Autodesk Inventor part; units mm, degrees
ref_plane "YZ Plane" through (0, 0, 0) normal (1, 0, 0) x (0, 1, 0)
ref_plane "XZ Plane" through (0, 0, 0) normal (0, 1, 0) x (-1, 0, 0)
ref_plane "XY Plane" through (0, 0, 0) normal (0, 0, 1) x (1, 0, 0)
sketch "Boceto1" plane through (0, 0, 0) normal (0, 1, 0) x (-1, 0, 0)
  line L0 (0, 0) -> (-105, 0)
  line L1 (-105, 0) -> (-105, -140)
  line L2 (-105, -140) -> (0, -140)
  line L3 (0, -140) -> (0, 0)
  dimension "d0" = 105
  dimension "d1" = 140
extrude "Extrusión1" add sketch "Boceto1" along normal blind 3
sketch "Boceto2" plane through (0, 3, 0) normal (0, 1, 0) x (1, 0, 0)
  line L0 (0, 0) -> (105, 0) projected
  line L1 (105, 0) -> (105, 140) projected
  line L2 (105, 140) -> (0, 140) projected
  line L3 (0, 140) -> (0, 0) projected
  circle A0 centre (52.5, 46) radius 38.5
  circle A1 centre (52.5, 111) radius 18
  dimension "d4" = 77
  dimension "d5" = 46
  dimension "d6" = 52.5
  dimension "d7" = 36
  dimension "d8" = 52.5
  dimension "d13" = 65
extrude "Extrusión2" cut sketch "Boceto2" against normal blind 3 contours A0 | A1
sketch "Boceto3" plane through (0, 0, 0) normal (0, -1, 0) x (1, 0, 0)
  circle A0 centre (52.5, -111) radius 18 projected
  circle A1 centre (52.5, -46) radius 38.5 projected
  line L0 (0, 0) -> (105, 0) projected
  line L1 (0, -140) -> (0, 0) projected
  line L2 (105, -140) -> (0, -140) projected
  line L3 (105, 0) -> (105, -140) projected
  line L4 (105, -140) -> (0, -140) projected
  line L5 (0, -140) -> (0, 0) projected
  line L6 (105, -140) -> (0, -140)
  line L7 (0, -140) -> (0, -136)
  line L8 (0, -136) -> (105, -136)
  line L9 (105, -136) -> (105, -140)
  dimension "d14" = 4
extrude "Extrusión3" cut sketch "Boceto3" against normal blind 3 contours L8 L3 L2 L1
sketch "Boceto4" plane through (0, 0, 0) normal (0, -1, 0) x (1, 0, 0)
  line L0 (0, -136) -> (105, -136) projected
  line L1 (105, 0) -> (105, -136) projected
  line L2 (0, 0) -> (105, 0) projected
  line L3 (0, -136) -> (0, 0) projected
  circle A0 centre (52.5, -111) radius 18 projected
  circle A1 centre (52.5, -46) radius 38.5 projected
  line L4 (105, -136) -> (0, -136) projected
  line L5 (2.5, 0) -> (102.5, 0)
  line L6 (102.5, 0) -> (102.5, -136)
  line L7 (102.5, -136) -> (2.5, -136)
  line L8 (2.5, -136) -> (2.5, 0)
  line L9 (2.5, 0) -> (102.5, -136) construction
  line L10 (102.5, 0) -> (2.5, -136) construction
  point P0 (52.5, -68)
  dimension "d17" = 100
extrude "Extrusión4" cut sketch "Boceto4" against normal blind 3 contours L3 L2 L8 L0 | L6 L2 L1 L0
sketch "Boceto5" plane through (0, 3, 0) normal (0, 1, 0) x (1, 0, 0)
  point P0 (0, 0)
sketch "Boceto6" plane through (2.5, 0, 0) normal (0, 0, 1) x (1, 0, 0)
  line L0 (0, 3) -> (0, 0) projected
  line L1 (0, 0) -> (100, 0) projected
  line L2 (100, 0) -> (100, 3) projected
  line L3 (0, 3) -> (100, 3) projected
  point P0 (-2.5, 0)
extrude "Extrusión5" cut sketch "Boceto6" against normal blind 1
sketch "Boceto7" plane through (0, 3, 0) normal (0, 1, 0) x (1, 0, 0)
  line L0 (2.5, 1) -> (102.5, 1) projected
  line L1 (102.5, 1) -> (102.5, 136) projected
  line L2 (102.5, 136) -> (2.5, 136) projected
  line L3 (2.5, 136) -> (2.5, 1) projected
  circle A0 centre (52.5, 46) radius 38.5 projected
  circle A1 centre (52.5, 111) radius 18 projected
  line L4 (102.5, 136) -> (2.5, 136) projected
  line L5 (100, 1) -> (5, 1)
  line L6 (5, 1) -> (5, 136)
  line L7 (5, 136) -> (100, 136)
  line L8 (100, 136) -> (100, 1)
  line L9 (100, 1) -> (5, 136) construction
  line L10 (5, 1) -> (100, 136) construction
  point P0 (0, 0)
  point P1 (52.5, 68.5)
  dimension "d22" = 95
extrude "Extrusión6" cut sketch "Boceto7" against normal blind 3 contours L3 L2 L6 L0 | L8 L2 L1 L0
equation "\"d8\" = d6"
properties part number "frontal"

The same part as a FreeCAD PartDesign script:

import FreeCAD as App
import Part
import Sketcher
from FreeCAD import Vector

doc = App.newDocument("Part")
body = doc.addObject("PartDesign::Body", "Body")

# Sketch on XZ plane
sketch1 = doc.addObject("Sketcher::SketchObject", "Sketch")
body.addObject(sketch1)
sketch1.AttachmentSupport = (doc.XZ_Plane, [""])
sketch1.MapMode = "FlatFace"
sketch1.addGeometry([
    Part.LineSegment(Vector(0, -140, 0), Vector(0, 0, 0)),
    Part.LineSegment(Vector(0, 0, 0), Vector(105, 0, 0)),
    Part.LineSegment(Vector(105, 0, 0), Vector(105, -140, 0)),
    Part.LineSegment(Vector(105, -140, 0), Vector(0, -140, 0)),
], False)
sketch1.addConstraint([
    Sketcher.Constraint("Coincident", 0, 2, 1, 1),
    Sketcher.Constraint("Coincident", 1, 2, 2, 1),
    Sketcher.Constraint("Coincident", 2, 2, 3, 1),
    Sketcher.Constraint("Coincident", 3, 2, 0, 1),
    Sketcher.Constraint("Vertical", 0),
    Sketcher.Constraint("Horizontal", 1),
    Sketcher.Constraint("Vertical", 2),
    Sketcher.Constraint("Horizontal", 3),
    Sketcher.Constraint("Coincident", 0, 2, -1, 1),
    Sketcher.Constraint("DistanceX", 1, 1, 1, 2, 105.0),
    Sketcher.Constraint("DistanceY", 0, 1, 0, 2, 140.0),
])
pad1 = doc.addObject("PartDesign::Pad", "Pad")
body.addObject(pad1)
pad1.Profile = sketch1
pad1.Length = 3
pad1.Reversed = True

# Sketch on XZ plane
sketch2 = doc.addObject("Sketcher::SketchObject", "Sketch001")
body.addObject(sketch2)
sketch2.AttachmentSupport = (doc.XZ_Plane, [""])
sketch2.MapMode = "FlatFace"
sketch2.AttachmentOffset = App.Placement(Vector(0, 0, -3), App.Rotation())
sketch2.addGeometry([
    Part.Circle(Vector(52, -46, 0), Vector(0, 0, 1), 38),
    Part.Circle(Vector(52, -111, 0), Vector(0, 0, 1), 18),
], False)
sketch2.addConstraint([
    Sketcher.Constraint("Vertical", 0, 3, 1, 3),
    Sketcher.Constraint("Diameter", 0, 77.0),
    Sketcher.Constraint("Diameter", 1, 36.0),
    Sketcher.Constraint("DistanceY", 0, 3, -1, 1, 46.0),
    Sketcher.Constraint("DistanceY", 1, 3, 0, 3, 65.0),
    Sketcher.Constraint("DistanceX", -1, 1, 0, 3, 52.5),
])
pocket1 = doc.addObject("PartDesign::Pocket", "Pocket")
body.addObject(pocket1)
pocket1.Profile = sketch2
pocket1.Length = 3
pocket1.Reversed = True

# Sketch on XZ plane
sketch3 = doc.addObject("Sketcher::SketchObject", "Sketch002")
body.addObject(sketch3)
sketch3.AttachmentSupport = (doc.XZ_Plane, [""])
sketch3.MapMode = "FlatFace"
sketch3.addGeometry([
    Part.LineSegment(Vector(105, -136, 0), Vector(0, -136, 0)),
    Part.LineSegment(Vector(0, -136, 0), Vector(0, -140, 0)),
    Part.LineSegment(Vector(0, -140, 0), Vector(105, -140, 0)),
    Part.LineSegment(Vector(105, -140, 0), Vector(105, -136, 0)),
], False)
sketch3.addConstraint([
    Sketcher.Constraint("Coincident", 0, 2, 1, 1),
    Sketcher.Constraint("Coincident", 1, 2, 2, 1),
    Sketcher.Constraint("Coincident", 2, 2, 3, 1),
    Sketcher.Constraint("Coincident", 3, 2, 0, 1),
    Sketcher.Constraint("Horizontal", 0),
    Sketcher.Constraint("Vertical", 1),
    Sketcher.Constraint("Horizontal", 2),
    Sketcher.Constraint("Vertical", 3),
    Sketcher.Constraint("PointOnObject", 0, 2, -2),
    Sketcher.Constraint("DistanceY", 1, 2, 1, 1, 4.0),
    Sketcher.Constraint("DistanceX", 0, 2, 0, 1, 105.0),
    Sketcher.Constraint("DistanceY", 0, 2, -1, 1, 136.0),
])
pocket2 = doc.addObject("PartDesign::Pocket", "Pocket001")
body.addObject(pocket2)
pocket2.Profile = sketch3
pocket2.Length = 3

# Sketch on XZ plane
sketch4 = doc.addObject("Sketcher::SketchObject", "Sketch003")
body.addObject(sketch4)
sketch4.AttachmentSupport = (doc.XZ_Plane, [""])
sketch4.MapMode = "FlatFace"
sketch4.addGeometry([
    Part.LineSegment(Vector(0, 0, 0), Vector(0, -136, 0)),  # 0
    Part.LineSegment(Vector(0, -136, 0), Vector(2.5, -136, 0)),  # 1
    Part.LineSegment(Vector(2.5, -136, 0), Vector(2.5, 0, 0)),  # 2
    Part.LineSegment(Vector(2.5, 0, 0), Vector(0, 0, 0)),  # 3
    Part.LineSegment(Vector(102.5, 0, 0), Vector(102.5, -136, 0)),  # 4
    Part.LineSegment(Vector(102.5, -136, 0), Vector(105, -136, 0)),  # 5
    Part.LineSegment(Vector(105, -136, 0), Vector(105, 0, 0)),  # 6
    Part.LineSegment(Vector(105, 0, 0), Vector(102.5, 0, 0)),  # 7
], False)
sketch4.addConstraint([
    Sketcher.Constraint("Coincident", 0, 2, 1, 1),
    Sketcher.Constraint("Coincident", 1, 2, 2, 1),
    Sketcher.Constraint("Coincident", 2, 2, 3, 1),
    Sketcher.Constraint("Coincident", 3, 2, 0, 1),
    Sketcher.Constraint("Coincident", 4, 2, 5, 1),
    Sketcher.Constraint("Coincident", 5, 2, 6, 1),
    Sketcher.Constraint("Coincident", 6, 2, 7, 1),
    Sketcher.Constraint("Coincident", 7, 2, 4, 1),
    Sketcher.Constraint("Vertical", 0),
    Sketcher.Constraint("Horizontal", 1),
    Sketcher.Constraint("Vertical", 2),
    Sketcher.Constraint("Horizontal", 3),
    Sketcher.Constraint("Vertical", 4),
    Sketcher.Constraint("Horizontal", 5),
    Sketcher.Constraint("Vertical", 6),
    Sketcher.Constraint("Horizontal", 7),
    Sketcher.Constraint("Coincident", 3, 2, -1, 1),
    Sketcher.Constraint("PointOnObject", 6, 2, -1),
    Sketcher.Constraint("Horizontal", 1, 2, 4, 2),
    Sketcher.Constraint("Equal", 3, 5),
    Sketcher.Constraint("DistanceX", 1, 2, 4, 2, 100.0),
    Sketcher.Constraint("DistanceY", 0, 2, 0, 1, 136.0),
    Sketcher.Constraint("DistanceX", 1, 1, 1, 2, 2.5),
])
pocket3 = doc.addObject("PartDesign::Pocket", "Pocket002")
body.addObject(pocket3)
pocket3.Profile = sketch4
pocket3.Length = 3

# Sketch on XY plane
sketch5 = doc.addObject("Sketcher::SketchObject", "Sketch004")
body.addObject(sketch5)
sketch5.AttachmentSupport = (doc.XY_Plane, [""])
sketch5.MapMode = "FlatFace"
sketch5.addGeometry([
    Part.LineSegment(Vector(102.5, 3, 0), Vector(2.5, 3, 0)),
    Part.LineSegment(Vector(2.5, 3, 0), Vector(2.5, 0, 0)),
    Part.LineSegment(Vector(2.5, 0, 0), Vector(102.5, 0, 0)),
    Part.LineSegment(Vector(102.5, 0, 0), Vector(102.5, 3, 0)),
], False)
sketch5.addConstraint([
    Sketcher.Constraint("Coincident", 0, 2, 1, 1),
    Sketcher.Constraint("Coincident", 1, 2, 2, 1),
    Sketcher.Constraint("Coincident", 2, 2, 3, 1),
    Sketcher.Constraint("Coincident", 3, 2, 0, 1),
    Sketcher.Constraint("Horizontal", 0),
    Sketcher.Constraint("Vertical", 1),
    Sketcher.Constraint("Horizontal", 2),
    Sketcher.Constraint("Vertical", 3),
    Sketcher.Constraint("PointOnObject", 1, 2, -1),
    Sketcher.Constraint("DistanceX", 0, 2, 0, 1, 100.0),
    Sketcher.Constraint("DistanceY", 1, 2, 1, 1, 3.0),
    Sketcher.Constraint("DistanceX", -1, 1, 0, 2, 2.5),
])
pocket4 = doc.addObject("PartDesign::Pocket", "Pocket003")
body.addObject(pocket4)
pocket4.Profile = sketch5
pocket4.Length = 1

# Sketch on XZ plane
sketch6 = doc.addObject("Sketcher::SketchObject", "Sketch005")
body.addObject(sketch6)
sketch6.AttachmentSupport = (doc.XZ_Plane, [""])
sketch6.MapMode = "FlatFace"
sketch6.AttachmentOffset = App.Placement(Vector(0, 0, -3), App.Rotation())
sketch6.addGeometry([
    Part.LineSegment(Vector(2.5, -136, 0), Vector(2.5, -1, 0)),  # 0
    Part.LineSegment(Vector(2.5, -1, 0), Vector(5, -1, 0)),  # 1
    Part.LineSegment(Vector(5, -1, 0), Vector(5, -136, 0)),  # 2
    Part.LineSegment(Vector(5, -136, 0), Vector(2.5, -136, 0)),  # 3
    Part.LineSegment(Vector(100, -136, 0), Vector(100, -1, 0)),  # 4
    Part.LineSegment(Vector(100, -1, 0), Vector(102.5, -1, 0)),  # 5
    Part.LineSegment(Vector(102.5, -1, 0), Vector(102.5, -136, 0)),  # 6
    Part.LineSegment(Vector(102.5, -136, 0), Vector(100, -136, 0)),  # 7
], False)
sketch6.addConstraint([
    Sketcher.Constraint("Coincident", 0, 2, 1, 1),
    Sketcher.Constraint("Coincident", 1, 2, 2, 1),
    Sketcher.Constraint("Coincident", 2, 2, 3, 1),
    Sketcher.Constraint("Coincident", 3, 2, 0, 1),
    Sketcher.Constraint("Coincident", 4, 2, 5, 1),
    Sketcher.Constraint("Coincident", 5, 2, 6, 1),
    Sketcher.Constraint("Coincident", 6, 2, 7, 1),
    Sketcher.Constraint("Coincident", 7, 2, 4, 1),
    Sketcher.Constraint("Vertical", 0),
    Sketcher.Constraint("Horizontal", 1),
    Sketcher.Constraint("Vertical", 2),
    Sketcher.Constraint("Horizontal", 3),
    Sketcher.Constraint("Vertical", 4),
    Sketcher.Constraint("Horizontal", 5),
    Sketcher.Constraint("Vertical", 6),
    Sketcher.Constraint("Horizontal", 7),
    Sketcher.Constraint("Horizontal", 1, 2, 4, 2),
    Sketcher.Constraint("Horizontal", 3, 2, 6, 2),
    Sketcher.Constraint("Equal", 3, 5),
    Sketcher.Constraint("DistanceX", 1, 2, 4, 2, 95.0),
    Sketcher.Constraint("DistanceY", 0, 1, 0, 2, 135.0),
    Sketcher.Constraint("DistanceX", 1, 1, 1, 2, 2.5),
    Sketcher.Constraint("DistanceY", 0, 2, -1, 1, 1.0),
    Sketcher.Constraint("DistanceX", -1, 1, 1, 2, 5.0),
])
pocket5 = doc.addObject("PartDesign::Pocket", "Pocket004")
body.addObject(pocket5)
pocket5.Profile = sketch6
pocket5.Length = 3
pocket5.Reversed = True

doc.recompute()
